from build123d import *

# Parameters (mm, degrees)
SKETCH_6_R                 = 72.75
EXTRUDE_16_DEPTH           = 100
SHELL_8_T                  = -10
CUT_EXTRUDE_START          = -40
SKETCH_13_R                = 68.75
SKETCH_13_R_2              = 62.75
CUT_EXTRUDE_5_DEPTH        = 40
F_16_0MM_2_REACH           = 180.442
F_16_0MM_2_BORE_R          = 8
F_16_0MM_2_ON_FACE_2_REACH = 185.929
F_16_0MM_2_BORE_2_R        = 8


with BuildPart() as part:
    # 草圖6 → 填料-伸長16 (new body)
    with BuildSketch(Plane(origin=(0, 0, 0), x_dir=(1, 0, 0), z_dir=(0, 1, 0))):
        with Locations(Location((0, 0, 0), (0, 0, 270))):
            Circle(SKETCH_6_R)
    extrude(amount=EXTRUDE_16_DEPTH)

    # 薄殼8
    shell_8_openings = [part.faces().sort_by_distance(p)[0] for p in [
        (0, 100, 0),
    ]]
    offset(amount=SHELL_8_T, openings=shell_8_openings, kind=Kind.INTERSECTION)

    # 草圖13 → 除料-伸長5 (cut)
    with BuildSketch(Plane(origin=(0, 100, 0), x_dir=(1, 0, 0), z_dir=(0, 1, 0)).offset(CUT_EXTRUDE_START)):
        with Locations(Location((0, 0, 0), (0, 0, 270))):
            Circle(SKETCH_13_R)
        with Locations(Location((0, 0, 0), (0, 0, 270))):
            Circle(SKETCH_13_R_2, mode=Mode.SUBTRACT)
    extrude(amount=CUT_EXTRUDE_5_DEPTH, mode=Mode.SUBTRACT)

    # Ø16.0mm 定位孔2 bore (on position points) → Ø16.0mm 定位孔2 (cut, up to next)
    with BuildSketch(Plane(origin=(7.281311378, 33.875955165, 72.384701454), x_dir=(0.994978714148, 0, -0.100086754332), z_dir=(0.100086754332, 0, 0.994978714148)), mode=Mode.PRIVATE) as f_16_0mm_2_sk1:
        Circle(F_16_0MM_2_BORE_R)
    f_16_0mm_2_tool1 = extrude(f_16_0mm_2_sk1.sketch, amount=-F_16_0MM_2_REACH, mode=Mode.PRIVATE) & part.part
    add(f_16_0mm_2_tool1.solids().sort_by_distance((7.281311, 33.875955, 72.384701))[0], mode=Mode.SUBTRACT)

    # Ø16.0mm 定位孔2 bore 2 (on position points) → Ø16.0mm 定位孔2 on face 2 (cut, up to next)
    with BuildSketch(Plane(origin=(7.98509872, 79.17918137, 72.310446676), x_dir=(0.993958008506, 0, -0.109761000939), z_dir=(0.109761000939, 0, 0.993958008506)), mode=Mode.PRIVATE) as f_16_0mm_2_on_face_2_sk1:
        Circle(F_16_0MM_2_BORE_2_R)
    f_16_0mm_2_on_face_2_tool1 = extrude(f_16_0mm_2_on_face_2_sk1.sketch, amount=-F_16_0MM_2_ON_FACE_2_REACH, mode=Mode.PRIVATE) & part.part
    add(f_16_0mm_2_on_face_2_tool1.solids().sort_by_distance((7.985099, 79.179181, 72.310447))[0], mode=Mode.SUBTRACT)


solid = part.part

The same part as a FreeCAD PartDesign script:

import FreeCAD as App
import Part
import Sketcher
from FreeCAD import Vector


def faces_at(feature, points):
    """Names of the faces that lie closest to the given points."""
    faces = feature.Shape.Faces
    near = lambda p: min(range(len(faces)), key=lambda i: faces[i].distToShape(Part.Vertex(*p))[0])
    return sorted({f"Face{near(p) + 1}" for p in points})

doc = App.newDocument("Part")
body = doc.addObject("PartDesign::Body", "Body")

sketch1 = body.newObject("Sketcher::SketchObject", "Sketch")
sketch1.AttachmentSupport = (doc.getObject("XZ_Plane"), [""])
sketch1.MapMode = "FlatFace"
sketch1.addGeometry(Part.Circle(Vector(0, 0, 0), Vector(0, 0, 1), 72.75), False)
sketch1.addConstraint(Sketcher.Constraint("Coincident", 0, 3, -1, 1))
sketch1.addConstraint(Sketcher.Constraint("Diameter", 0, 145.5))
pad1 = body.newObject("PartDesign::Pad", "Pad")
pad1.Profile = sketch1
pad1.Length = 100
pad1.Reversed = True
doc.recompute()

thickness = body.newObject("PartDesign::Thickness", "Thickness")
thickness.Base = (pad1, faces_at(pad1, [(0, 100, 0)]))
thickness.Value = 10
thickness.Reversed = True
thickness.Join = "Intersection"

sketch2 = body.newObject("Sketcher::SketchObject", "Sketch001")
sketch2.AttachmentSupport = (doc.getObject("XZ_Plane"), [""])
sketch2.MapMode = "FlatFace"
sketch2.AttachmentOffset = App.Placement(Vector(0, 0, -60), App.Rotation())
sketch2.addGeometry(Part.Circle(Vector(0, 0, 0), Vector(0, 0, 1), 68.75), False)
sketch2.addGeometry(Part.Circle(Vector(0, 0, 0), Vector(0, 0, 1), 62.75), False)
sketch2.addConstraint(Sketcher.Constraint("Coincident", 0, 3, -1, 1))
sketch2.addConstraint(Sketcher.Constraint("Coincident", 1, 3, -1, 1))
sketch2.addConstraint(Sketcher.Constraint("Diameter", 0, 137.5))
sketch2.addConstraint(Sketcher.Constraint("Diameter", 1, 125.5))
pocket1 = body.newObject("PartDesign::Pocket", "Pocket")
pocket1.Profile = sketch2
pocket1.Length = 40

sketch3 = body.newObject("Sketcher::SketchObject", "Sketch002")
sketch3.Placement = App.Placement(Vector(7.281311, 33.875955, 72.384701), App.Rotation(Vector(0.994978714, 0, -0.100086754), Vector(0, 1, 0), Vector(0.100086754, 0, 0.994978714), "ZXY"))
sketch3.addGeometry(Part.Circle(Vector(0, 0, 0), Vector(0, 0, 1), 8), False)
sketch3.addConstraint(Sketcher.Constraint("Coincident", 0, 3, -1, 1))
sketch3.addConstraint(Sketcher.Constraint("Diameter", 0, 16.0))
pocket2 = body.newObject("PartDesign::Pocket", "Pocket001")
pocket2.Profile = sketch3
pocket2.Length = 10.512049

sketch4 = body.newObject("Sketcher::SketchObject", "Sketch003")
sketch4.Placement = App.Placement(Vector(7.985099, 79.179181, 72.310447), App.Rotation(Vector(0.993958009, 0, -0.109761001), Vector(0, 1.000000001, 0), Vector(0.109761001, 0, 0.993958009), "ZXY"))
sketch4.addGeometry(Part.Circle(Vector(0, 0, 0), Vector(0, 0, 1), 8), False)
sketch4.addConstraint(Sketcher.Constraint("Coincident", 0, 3, -1, 1))
sketch4.addConstraint(Sketcher.Constraint("Diameter", 0, 16.0))
pocket3 = body.newObject("PartDesign::Pocket", "Pocket002")
pocket3.Profile = sketch4
pocket3.Type = "UpToFirst"

doc.recompute()
